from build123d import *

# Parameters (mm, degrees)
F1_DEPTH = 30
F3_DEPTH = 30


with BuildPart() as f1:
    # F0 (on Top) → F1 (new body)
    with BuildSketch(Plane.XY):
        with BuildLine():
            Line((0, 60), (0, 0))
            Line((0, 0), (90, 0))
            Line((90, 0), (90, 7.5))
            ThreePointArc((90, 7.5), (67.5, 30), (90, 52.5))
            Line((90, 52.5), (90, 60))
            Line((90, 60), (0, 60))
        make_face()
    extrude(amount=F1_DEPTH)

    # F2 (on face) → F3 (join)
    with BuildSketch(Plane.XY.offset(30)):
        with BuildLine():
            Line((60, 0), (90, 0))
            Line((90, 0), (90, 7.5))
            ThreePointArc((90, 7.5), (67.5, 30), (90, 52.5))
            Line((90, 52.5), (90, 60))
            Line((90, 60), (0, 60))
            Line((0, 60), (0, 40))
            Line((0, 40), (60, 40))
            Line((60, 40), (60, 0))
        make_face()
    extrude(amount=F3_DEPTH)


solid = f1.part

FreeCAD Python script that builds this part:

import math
import FreeCAD as App
import Part
import Sketcher

V = App.Vector

doc = App.newDocument("Part")
params = doc.addObject("Spreadsheet::Sheet", "Params")
for row, (alias, value) in enumerate([
    ("sketch1_radius", "22.5 mm"),
    ("sketch1_width", "90 mm"),
    ("sketch1_height", "60 mm"),
    ("pad1_length", "30 mm"),
    ("sketch2_radius", "22.5 mm"),
    ("sketch2_width", "30 mm"),
    ("sketch2_width2", "90 mm"),
    ("sketch2_height", "20 mm"),
    ("sketch2_height2", "40 mm"),
    ("pad2_length", "30 mm"),
], start=1):
    params.set(f"A{row}", alias)
    params.set(f"B{row}", "=" + value)
    params.setAlias(f"B{row}", alias)

body = doc.addObject("PartDesign::Body", "Body")

# Sketch on XY plane
sketch1 = body.newObject("Sketcher::SketchObject", "Sketch")
sketch1.AttachmentSupport = (doc.getObject("XY_Plane"), [""])
sketch1.MapMode = "FlatFace"
sketch1.addGeometry(Part.LineSegment(V(0, 60, 0), V(0, 0, 0)), False)
sketch1.addGeometry(Part.LineSegment(V(0, 0, 0), V(90, 0, 0)), False)
sketch1.addGeometry(Part.LineSegment(V(90, 0, 0), V(90, 8, 0)), False)
sketch1.addGeometry(Part.ArcOfCircle(Part.Circle(V(90, 30, 0), V(0, 0, 1), 22), math.radians(90), math.radians(270)), False)
sketch1.addGeometry(Part.LineSegment(V(90, 52, 0), V(90, 60, 0)), False)
sketch1.addGeometry(Part.LineSegment(V(90, 60, 0), V(0, 60, 0)), False)
sketch1.addConstraint(Sketcher.Constraint("Coincident", 0, 2, 1, 1))
sketch1.addConstraint(Sketcher.Constraint("Coincident", 1, 2, 2, 1))
sketch1.addConstraint(Sketcher.Constraint("Coincident", 2, 2, 3, 2))
sketch1.addConstraint(Sketcher.Constraint("Coincident", 3, 1, 4, 1))
sketch1.addConstraint(Sketcher.Constraint("Coincident", 4, 2, 5, 1))
sketch1.addConstraint(Sketcher.Constraint("Coincident", 5, 2, 0, 1))
sketch1.addConstraint(Sketcher.Constraint("Vertical", 0))
sketch1.addConstraint(Sketcher.Constraint("Horizontal", 1))
sketch1.addConstraint(Sketcher.Constraint("Vertical", 2))
sketch1.addConstraint(Sketcher.Constraint("Vertical", 4))
sketch1.addConstraint(Sketcher.Constraint("Horizontal", 5))
sketch1.addConstraint(Sketcher.Constraint("Coincident", 0, 2, -1, 1))
sketch1.addConstraint(Sketcher.Constraint("Vertical", 3, 3, 1, 2))
sketch1.addConstraint(Sketcher.Constraint("Vertical", 2, 2, 3, 1))
sketch1.addConstraint(Sketcher.Constraint("Equal", 2, 4))
sketch1.addConstraint(Sketcher.Constraint("Radius", 3, 22.5))
sketch1.addConstraint(Sketcher.Constraint("DistanceX", 1, 1, 1, 2, 90.0))
sketch1.addConstraint(Sketcher.Constraint("DistanceY", 0, 2, 0, 1, 60.0))
sketch1.setExpression("Constraints[15]", "Params.sketch1_radius")
sketch1.setExpression("Constraints[16]", "Params.sketch1_width")
sketch1.setExpression("Constraints[17]", "Params.sketch1_height")
pad1 = body.newObject("PartDesign::Pad", "Pad")
pad1.Profile = sketch1
pad1.setExpression("Length", "Params.pad1_length")

# Sketch on XY plane
sketch2 = body.newObject("Sketcher::SketchObject", "Sketch001")
sketch2.AttachmentSupport = (doc.getObject("XY_Plane"), [""])
sketch2.MapMode = "FlatFace"
sketch2.AttachmentOffset = App.Placement(V(0, 0, 30), App.Rotation())
sketch2.addGeometry(Part.LineSegment(V(60, 0, 0), V(90, 0, 0)), False)
sketch2.addGeometry(Part.LineSegment(V(90, 0, 0), V(90, 8, 0)), False)
sketch2.addGeometry(Part.ArcOfCircle(Part.Circle(V(90, 30, 0), V(0, 0, 1), 22), math.radians(90), math.radians(270)), False)
sketch2.addGeometry(Part.LineSegment(V(90, 52, 0), V(90, 60, 0)), False)
sketch2.addGeometry(Part.LineSegment(V(90, 60, 0), V(0, 60, 0)), False)
sketch2.addGeometry(Part.LineSegment(V(0, 60, 0), V(0, 40, 0)), False)
sketch2.addGeometry(Part.LineSegment(V(0, 40, 0), V(60, 40, 0)), False)
sketch2.addGeometry(Part.LineSegment(V(60, 40, 0), V(60, 0, 0)), False)
sketch2.addConstraint(Sketcher.Constraint("Coincident", 0, 2, 1, 1))
sketch2.addConstraint(Sketcher.Constraint("Coincident", 1, 2, 2, 2))
sketch2.addConstraint(Sketcher.Constraint("Coincident", 2, 1, 3, 1))
sketch2.addConstraint(Sketcher.Constraint("Coincident", 3, 2, 4, 1))
sketch2.addConstraint(Sketcher.Constraint("Coincident", 4, 2, 5, 1))
sketch2.addConstraint(Sketcher.Constraint("Coincident", 5, 2, 6, 1))
sketch2.addConstraint(Sketcher.Constraint("Coincident", 6, 2, 7, 1))
sketch2.addConstraint(Sketcher.Constraint("Coincident", 7, 2, 0, 1))
sketch2.addConstraint(Sketcher.Constraint("Horizontal", 0))
sketch2.addConstraint(Sketcher.Constraint("Vertical", 1))
sketch2.addConstraint(Sketcher.Constraint("Vertical", 3))
sketch2.addConstraint(Sketcher.Constraint("Horizontal", 4))
sketch2.addConstraint(Sketcher.Constraint("Vertical", 5))
sketch2.addConstraint(Sketcher.Constraint("Horizontal", 6))
sketch2.addConstraint(Sketcher.Constraint("Vertical", 7))
sketch2.addConstraint(Sketcher.Constraint("PointOnObject", 0, 2, -1))
sketch2.addConstraint(Sketcher.Constraint("PointOnObject", 4, 2, -2))
sketch2.addConstraint(Sketcher.Constraint("Vertical", 2, 3, 0, 2))
sketch2.addConstraint(Sketcher.Constraint("Vertical", 1, 2, 2, 1))
sketch2.addConstraint(Sketcher.Constraint("Equal", 1, 3))
sketch2.addConstraint(Sketcher.Constraint("Radius", 2, 22.5))
sketch2.addConstraint(Sketcher.Constraint("DistanceX", 0, 1, 0, 2, 30.0))
sketch2.addConstraint(Sketcher.Constraint("DistanceX", 4, 2, 4, 1, 90.0))
sketch2.addConstraint(Sketcher.Constraint("DistanceY", 5, 2, 5, 1, 20.0))
sketch2.addConstraint(Sketcher.Constraint("DistanceY", 7, 2, 7, 1, 40.0))
sketch2.setExpression("Constraints[20]", "Params.sketch2_radius")
sketch2.setExpression("Constraints[21]", "Params.sketch2_width")
sketch2.setExpression("Constraints[22]", "Params.sketch2_width2")
sketch2.setExpression("Constraints[23]", "Params.sketch2_height")
sketch2.setExpression("Constraints[24]", "Params.sketch2_height2")
pad2 = body.newObject("PartDesign::Pad", "Pad001")
pad2.Profile = sketch2
pad2.setExpression("Length", "Params.pad2_length")

doc.recompute()
